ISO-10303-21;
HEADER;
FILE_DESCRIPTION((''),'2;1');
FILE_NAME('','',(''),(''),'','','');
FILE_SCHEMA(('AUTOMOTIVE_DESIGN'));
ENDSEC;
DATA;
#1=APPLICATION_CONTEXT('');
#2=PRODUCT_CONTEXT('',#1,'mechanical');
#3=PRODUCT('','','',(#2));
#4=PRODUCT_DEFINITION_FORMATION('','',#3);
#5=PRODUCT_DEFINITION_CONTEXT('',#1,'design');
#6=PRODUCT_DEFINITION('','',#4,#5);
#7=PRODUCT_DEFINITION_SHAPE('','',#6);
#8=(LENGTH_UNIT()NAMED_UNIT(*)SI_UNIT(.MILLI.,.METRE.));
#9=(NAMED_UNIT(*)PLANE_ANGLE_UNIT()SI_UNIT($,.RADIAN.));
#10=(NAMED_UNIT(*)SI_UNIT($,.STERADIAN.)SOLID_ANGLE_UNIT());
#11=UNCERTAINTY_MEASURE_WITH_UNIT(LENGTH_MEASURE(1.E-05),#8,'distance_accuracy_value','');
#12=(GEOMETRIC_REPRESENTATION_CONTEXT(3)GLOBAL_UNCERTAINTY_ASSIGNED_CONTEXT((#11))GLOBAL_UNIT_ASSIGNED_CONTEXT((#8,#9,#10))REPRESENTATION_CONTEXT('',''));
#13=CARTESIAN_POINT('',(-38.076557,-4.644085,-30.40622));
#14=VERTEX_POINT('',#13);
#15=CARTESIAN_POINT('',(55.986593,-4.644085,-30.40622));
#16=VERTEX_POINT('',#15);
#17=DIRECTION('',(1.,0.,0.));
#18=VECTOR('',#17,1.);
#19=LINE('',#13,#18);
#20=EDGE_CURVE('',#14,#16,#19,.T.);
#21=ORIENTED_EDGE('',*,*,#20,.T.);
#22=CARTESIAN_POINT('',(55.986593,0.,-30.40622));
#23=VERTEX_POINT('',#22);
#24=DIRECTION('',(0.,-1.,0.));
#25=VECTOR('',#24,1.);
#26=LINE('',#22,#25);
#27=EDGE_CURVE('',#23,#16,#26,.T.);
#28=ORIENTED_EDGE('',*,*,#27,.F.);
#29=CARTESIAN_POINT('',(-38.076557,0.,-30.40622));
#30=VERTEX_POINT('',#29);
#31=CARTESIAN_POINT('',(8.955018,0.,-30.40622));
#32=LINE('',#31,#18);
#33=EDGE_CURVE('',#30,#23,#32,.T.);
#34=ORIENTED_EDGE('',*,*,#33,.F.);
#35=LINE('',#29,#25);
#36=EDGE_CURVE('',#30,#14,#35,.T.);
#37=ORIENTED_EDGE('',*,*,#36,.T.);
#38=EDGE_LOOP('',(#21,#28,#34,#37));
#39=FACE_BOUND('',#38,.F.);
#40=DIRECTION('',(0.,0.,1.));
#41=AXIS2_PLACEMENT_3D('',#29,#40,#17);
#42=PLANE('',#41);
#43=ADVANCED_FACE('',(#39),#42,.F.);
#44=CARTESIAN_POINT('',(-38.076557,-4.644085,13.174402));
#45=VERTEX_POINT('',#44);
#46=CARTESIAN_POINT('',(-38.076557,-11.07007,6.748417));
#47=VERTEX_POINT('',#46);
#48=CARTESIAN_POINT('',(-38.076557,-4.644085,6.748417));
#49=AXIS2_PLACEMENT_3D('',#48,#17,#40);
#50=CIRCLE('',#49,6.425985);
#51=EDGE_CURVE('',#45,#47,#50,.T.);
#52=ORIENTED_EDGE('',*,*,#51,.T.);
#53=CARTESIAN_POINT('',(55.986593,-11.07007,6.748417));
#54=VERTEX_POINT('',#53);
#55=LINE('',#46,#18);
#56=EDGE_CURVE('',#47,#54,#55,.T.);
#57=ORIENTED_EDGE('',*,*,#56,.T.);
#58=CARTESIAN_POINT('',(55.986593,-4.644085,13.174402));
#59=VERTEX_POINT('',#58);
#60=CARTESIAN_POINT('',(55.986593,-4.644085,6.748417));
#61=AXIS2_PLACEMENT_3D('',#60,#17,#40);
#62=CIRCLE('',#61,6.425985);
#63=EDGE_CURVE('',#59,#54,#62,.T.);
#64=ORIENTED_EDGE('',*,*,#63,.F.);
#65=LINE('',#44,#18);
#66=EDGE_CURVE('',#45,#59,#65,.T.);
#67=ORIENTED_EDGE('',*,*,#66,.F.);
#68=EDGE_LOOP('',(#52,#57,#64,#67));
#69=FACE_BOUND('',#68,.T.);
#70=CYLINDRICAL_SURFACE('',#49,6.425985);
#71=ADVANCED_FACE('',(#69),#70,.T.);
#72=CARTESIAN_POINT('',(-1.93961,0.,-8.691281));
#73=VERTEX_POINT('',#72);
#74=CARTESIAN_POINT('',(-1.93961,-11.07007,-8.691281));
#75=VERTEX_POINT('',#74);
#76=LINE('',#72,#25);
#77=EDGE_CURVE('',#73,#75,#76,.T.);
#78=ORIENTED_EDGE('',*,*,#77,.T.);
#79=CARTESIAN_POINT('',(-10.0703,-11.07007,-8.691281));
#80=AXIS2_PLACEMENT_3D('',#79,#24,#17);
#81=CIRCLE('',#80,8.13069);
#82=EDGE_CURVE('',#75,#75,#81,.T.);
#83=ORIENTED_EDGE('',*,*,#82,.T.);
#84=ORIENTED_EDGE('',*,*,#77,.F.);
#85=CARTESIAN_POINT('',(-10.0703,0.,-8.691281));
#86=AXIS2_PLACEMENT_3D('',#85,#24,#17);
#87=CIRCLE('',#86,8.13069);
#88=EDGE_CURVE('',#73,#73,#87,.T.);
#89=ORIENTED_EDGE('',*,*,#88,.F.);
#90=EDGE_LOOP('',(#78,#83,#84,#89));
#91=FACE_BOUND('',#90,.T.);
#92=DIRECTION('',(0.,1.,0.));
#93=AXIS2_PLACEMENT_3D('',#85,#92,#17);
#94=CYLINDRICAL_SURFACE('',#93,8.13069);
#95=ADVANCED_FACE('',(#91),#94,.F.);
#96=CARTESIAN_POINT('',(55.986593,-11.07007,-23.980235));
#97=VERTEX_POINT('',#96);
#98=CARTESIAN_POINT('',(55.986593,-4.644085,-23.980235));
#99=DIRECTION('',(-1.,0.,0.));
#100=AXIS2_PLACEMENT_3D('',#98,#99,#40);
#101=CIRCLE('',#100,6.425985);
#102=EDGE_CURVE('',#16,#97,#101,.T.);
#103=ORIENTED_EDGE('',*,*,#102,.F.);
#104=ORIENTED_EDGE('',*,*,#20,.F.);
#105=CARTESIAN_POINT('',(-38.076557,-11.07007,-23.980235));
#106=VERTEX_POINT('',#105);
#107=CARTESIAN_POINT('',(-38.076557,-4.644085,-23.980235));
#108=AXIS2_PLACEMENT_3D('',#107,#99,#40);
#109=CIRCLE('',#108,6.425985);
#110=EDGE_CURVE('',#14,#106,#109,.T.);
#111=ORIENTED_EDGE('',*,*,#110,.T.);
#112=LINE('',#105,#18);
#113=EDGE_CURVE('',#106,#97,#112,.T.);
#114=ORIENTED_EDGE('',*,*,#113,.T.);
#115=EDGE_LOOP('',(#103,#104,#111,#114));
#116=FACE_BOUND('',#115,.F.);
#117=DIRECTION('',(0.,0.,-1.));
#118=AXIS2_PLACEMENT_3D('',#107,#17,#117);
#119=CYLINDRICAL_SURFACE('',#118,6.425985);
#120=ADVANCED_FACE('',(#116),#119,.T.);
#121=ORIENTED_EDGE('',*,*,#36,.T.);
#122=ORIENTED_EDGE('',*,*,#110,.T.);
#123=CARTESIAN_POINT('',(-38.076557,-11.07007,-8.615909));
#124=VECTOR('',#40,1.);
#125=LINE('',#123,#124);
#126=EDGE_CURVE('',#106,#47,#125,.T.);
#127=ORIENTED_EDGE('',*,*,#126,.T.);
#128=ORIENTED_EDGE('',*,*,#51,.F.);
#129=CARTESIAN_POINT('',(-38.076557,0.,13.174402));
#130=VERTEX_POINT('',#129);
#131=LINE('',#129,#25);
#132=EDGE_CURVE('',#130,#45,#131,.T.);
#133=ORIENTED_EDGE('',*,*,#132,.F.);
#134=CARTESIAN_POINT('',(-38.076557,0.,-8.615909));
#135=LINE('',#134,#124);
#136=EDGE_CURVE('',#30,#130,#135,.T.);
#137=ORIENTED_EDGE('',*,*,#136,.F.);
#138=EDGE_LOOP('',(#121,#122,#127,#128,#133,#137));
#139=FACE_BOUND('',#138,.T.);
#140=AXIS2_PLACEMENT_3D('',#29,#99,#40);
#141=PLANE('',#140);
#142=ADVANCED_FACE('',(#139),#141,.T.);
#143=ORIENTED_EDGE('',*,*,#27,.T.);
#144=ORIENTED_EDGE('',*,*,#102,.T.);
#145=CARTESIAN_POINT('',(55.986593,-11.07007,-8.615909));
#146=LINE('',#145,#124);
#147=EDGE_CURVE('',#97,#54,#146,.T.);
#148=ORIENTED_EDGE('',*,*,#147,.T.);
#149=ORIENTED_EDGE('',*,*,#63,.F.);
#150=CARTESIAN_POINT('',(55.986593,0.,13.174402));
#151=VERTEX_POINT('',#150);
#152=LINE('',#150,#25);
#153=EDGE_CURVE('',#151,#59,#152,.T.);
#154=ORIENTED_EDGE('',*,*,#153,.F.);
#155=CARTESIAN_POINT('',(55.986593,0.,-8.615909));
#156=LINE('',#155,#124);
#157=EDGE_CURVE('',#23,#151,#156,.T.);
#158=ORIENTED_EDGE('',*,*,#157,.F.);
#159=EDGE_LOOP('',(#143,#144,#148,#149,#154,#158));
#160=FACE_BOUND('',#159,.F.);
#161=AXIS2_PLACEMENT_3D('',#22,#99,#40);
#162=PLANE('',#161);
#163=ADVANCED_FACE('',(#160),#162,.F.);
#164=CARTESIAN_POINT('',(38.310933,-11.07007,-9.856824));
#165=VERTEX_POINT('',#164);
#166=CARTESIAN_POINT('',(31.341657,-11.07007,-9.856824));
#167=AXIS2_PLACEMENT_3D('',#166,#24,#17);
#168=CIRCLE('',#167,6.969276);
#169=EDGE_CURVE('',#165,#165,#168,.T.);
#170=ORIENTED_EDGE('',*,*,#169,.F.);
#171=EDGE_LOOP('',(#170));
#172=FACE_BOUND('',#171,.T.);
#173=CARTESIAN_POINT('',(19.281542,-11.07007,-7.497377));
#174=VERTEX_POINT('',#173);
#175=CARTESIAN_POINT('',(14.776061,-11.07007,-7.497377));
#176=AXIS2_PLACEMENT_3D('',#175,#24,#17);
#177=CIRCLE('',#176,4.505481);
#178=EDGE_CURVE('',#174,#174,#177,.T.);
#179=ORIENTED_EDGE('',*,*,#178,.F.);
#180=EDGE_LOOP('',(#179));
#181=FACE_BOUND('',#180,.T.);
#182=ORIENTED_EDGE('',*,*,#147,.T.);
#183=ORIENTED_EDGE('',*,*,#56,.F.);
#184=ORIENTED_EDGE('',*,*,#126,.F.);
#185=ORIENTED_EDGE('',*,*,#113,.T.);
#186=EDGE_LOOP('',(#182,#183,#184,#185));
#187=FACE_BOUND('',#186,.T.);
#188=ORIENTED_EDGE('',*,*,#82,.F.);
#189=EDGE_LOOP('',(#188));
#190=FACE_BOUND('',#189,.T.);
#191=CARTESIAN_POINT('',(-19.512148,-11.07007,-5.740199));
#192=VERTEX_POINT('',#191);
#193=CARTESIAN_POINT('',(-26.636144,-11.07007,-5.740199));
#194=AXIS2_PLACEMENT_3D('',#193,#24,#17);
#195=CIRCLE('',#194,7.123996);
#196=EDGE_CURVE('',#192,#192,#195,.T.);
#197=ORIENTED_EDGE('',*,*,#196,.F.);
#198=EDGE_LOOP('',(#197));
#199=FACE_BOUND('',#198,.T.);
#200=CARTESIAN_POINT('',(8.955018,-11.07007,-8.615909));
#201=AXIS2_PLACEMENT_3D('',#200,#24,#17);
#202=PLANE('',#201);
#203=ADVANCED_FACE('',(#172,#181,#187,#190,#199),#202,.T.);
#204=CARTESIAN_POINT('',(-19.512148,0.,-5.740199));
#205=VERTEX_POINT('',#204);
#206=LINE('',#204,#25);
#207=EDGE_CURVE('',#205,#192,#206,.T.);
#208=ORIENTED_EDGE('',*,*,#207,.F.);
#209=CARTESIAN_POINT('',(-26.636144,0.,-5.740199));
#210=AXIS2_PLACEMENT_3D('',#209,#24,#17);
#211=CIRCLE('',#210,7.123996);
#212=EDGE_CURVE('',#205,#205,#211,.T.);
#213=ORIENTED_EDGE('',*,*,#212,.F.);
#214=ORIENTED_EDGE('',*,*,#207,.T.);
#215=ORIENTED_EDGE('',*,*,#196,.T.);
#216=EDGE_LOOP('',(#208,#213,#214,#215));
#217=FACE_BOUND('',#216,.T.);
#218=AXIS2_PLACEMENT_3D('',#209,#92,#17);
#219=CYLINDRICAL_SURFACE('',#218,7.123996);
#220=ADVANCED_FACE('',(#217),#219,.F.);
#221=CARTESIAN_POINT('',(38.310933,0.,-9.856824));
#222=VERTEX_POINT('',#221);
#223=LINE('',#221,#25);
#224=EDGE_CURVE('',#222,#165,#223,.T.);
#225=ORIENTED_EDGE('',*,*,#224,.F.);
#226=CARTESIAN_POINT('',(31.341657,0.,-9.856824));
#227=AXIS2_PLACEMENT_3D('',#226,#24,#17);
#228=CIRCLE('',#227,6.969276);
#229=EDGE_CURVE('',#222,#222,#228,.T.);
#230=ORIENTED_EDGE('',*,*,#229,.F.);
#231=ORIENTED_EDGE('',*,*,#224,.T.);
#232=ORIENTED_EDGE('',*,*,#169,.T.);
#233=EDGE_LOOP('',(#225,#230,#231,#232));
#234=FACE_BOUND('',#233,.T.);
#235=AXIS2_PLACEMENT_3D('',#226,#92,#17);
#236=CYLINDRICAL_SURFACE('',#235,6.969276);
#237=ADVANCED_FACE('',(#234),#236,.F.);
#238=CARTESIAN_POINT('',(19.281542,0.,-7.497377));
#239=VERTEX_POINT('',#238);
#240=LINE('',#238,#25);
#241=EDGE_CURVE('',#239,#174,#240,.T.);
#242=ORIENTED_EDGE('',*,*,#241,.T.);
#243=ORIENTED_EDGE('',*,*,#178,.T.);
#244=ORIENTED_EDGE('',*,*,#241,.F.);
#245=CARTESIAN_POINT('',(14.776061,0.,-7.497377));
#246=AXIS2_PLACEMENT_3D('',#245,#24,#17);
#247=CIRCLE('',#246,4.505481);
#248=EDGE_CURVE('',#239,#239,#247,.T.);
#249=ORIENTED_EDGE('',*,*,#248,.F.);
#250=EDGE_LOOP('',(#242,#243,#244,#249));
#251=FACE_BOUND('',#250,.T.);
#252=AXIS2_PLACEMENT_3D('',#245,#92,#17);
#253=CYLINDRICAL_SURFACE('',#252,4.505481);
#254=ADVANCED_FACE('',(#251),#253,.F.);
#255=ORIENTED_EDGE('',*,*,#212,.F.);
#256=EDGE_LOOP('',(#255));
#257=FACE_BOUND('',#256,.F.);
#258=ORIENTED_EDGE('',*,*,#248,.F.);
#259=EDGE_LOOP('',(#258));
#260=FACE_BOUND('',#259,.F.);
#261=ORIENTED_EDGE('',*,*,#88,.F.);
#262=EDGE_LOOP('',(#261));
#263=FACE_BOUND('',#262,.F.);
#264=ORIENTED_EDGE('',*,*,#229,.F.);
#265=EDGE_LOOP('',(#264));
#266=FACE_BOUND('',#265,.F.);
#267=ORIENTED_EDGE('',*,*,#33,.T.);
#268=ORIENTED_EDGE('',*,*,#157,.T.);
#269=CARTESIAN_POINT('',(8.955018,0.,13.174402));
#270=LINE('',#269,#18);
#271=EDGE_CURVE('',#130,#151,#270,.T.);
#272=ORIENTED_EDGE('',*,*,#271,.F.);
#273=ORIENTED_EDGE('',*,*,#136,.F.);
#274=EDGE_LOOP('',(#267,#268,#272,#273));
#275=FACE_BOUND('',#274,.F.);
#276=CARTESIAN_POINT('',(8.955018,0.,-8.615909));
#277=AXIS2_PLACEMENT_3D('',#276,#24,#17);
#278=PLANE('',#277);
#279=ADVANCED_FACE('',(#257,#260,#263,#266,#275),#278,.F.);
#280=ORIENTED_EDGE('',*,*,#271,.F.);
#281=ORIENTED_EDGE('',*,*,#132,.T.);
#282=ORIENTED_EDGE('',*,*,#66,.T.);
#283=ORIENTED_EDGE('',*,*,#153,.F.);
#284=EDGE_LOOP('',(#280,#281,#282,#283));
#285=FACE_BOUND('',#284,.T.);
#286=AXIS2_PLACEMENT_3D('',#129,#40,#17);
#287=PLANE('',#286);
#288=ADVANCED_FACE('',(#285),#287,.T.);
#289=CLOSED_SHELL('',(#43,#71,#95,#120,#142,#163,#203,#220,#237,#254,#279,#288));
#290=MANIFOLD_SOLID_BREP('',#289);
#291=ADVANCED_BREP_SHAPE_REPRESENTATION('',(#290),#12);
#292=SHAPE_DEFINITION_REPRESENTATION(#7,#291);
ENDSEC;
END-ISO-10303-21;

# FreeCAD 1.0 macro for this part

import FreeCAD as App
import Part
import Sketcher
from FreeCAD import Vector


def edges_at(feature, points):
    """Names of the edges that pass closest to the given points."""
    edges = feature.Shape.Edges
    near = lambda p: min(range(len(edges)), key=lambda i: edges[i].distToShape(Part.Vertex(*p))[0])
    return sorted({f"Edge{near(p) + 1}" for p in points})

doc = App.newDocument("Part")
body = doc.addObject("PartDesign::Body", "Body")

# Sketch on XZ plane
sketch1 = body.newObject("Sketcher::SketchObject", "Sketch")
sketch1.AttachmentSupport = (doc.getObject("XZ_Plane"), [""])
sketch1.MapMode = "FlatFace"
sketch1.addGeometry([
    Part.LineSegment(Vector(-38, 13, 0), Vector(-38, -30, 0)),
    Part.LineSegment(Vector(-38, -30, 0), Vector(56, -30, 0)),
    Part.LineSegment(Vector(56, -30, 0), Vector(56, 13, 0)),
    Part.LineSegment(Vector(56, 13, 0), Vector(-38, 13, 0)),
], False)
sketch1.addConstraint([
    Sketcher.Constraint("Coincident", 0, 2, 1, 1),
    Sketcher.Constraint("Coincident", 1, 2, 2, 1),
    Sketcher.Constraint("Coincident", 2, 2, 3, 1),
    Sketcher.Constraint("Coincident", 3, 2, 0, 1),
    Sketcher.Constraint("Vertical", 0),
    Sketcher.Constraint("Horizontal", 1),
    Sketcher.Constraint("Vertical", 2),
    Sketcher.Constraint("Horizontal", 3),
    Sketcher.Constraint("DistanceX", 1, 1, 1, 2, 94.063151),
    Sketcher.Constraint("DistanceY", 0, 2, 0, 1, 43.580622),
    Sketcher.Constraint("DistanceY", 0, 2, -1, 1, 30.40622),
    Sketcher.Constraint("DistanceX", 0, 2, -1, 1, 38.076557),
])
pad1 = body.newObject("PartDesign::Pad", "Pad")
pad1.Profile = sketch1
pad1.Length = 11.07007

# Sketch on XZ plane
sketch2 = body.newObject("Sketcher::SketchObject", "Sketch001")
sketch2.AttachmentSupport = (doc.getObject("XZ_Plane"), [""])
sketch2.MapMode = "FlatFace"
sketch2.addGeometry([
    Part.Circle(Vector(31.3, -9.9, 0), Vector(0, 0, 1), 7),
    Part.Circle(Vector(14.8, -7.5, 0), Vector(0, 0, 1), 4.5),
    Part.Circle(Vector(-10.1, -8.7, 0), Vector(0, 0, 1), 8.1),
    Part.Circle(Vector(-26.6, -5.7, 0), Vector(0, 0, 1), 7.1),
], False)
sketch2.addConstraint([
    Sketcher.Constraint("Diameter", 1, 9.010962),
    Sketcher.Constraint("Diameter", 2, 16.26138),
    Sketcher.Constraint("Diameter", 0, 13.938552),
    Sketcher.Constraint("Diameter", 3, 14.247992),
    Sketcher.Constraint("DistanceX", 2, 3, -1, 1, 10.0703),
    Sketcher.Constraint("DistanceY", 3, 3, -1, 1, 5.740199),
    Sketcher.Constraint("DistanceX", 3, 3, 0, 3, 57.977801),
    Sketcher.Constraint("DistanceX", -1, 1, 1, 3, 14.776061),
    Sketcher.Constraint("DistanceY", 2, 3, -1, 1, 8.691281),
    Sketcher.Constraint("DistanceY", 1, 3, 3, 3, 1.757178),
    Sketcher.Constraint("DistanceX", -1, 1, 0, 3, 31.341657),
    Sketcher.Constraint("DistanceY", 0, 3, -1, 1, 9.856824),
])
pocket1 = body.newObject("PartDesign::Pocket", "Pocket")
pocket1.Profile = sketch2
pocket1.Type = "ThroughAll"
pocket1.Reversed = True
doc.recompute()

fillet = body.newObject("PartDesign::Fillet", "Fillet")
fillet.Base = (pocket1, edges_at(pocket1, [(8.955, -11.07, 13.174), (8.955, -11.07, -30.406)]))
fillet.Radius = 6.425985

doc.recompute()
